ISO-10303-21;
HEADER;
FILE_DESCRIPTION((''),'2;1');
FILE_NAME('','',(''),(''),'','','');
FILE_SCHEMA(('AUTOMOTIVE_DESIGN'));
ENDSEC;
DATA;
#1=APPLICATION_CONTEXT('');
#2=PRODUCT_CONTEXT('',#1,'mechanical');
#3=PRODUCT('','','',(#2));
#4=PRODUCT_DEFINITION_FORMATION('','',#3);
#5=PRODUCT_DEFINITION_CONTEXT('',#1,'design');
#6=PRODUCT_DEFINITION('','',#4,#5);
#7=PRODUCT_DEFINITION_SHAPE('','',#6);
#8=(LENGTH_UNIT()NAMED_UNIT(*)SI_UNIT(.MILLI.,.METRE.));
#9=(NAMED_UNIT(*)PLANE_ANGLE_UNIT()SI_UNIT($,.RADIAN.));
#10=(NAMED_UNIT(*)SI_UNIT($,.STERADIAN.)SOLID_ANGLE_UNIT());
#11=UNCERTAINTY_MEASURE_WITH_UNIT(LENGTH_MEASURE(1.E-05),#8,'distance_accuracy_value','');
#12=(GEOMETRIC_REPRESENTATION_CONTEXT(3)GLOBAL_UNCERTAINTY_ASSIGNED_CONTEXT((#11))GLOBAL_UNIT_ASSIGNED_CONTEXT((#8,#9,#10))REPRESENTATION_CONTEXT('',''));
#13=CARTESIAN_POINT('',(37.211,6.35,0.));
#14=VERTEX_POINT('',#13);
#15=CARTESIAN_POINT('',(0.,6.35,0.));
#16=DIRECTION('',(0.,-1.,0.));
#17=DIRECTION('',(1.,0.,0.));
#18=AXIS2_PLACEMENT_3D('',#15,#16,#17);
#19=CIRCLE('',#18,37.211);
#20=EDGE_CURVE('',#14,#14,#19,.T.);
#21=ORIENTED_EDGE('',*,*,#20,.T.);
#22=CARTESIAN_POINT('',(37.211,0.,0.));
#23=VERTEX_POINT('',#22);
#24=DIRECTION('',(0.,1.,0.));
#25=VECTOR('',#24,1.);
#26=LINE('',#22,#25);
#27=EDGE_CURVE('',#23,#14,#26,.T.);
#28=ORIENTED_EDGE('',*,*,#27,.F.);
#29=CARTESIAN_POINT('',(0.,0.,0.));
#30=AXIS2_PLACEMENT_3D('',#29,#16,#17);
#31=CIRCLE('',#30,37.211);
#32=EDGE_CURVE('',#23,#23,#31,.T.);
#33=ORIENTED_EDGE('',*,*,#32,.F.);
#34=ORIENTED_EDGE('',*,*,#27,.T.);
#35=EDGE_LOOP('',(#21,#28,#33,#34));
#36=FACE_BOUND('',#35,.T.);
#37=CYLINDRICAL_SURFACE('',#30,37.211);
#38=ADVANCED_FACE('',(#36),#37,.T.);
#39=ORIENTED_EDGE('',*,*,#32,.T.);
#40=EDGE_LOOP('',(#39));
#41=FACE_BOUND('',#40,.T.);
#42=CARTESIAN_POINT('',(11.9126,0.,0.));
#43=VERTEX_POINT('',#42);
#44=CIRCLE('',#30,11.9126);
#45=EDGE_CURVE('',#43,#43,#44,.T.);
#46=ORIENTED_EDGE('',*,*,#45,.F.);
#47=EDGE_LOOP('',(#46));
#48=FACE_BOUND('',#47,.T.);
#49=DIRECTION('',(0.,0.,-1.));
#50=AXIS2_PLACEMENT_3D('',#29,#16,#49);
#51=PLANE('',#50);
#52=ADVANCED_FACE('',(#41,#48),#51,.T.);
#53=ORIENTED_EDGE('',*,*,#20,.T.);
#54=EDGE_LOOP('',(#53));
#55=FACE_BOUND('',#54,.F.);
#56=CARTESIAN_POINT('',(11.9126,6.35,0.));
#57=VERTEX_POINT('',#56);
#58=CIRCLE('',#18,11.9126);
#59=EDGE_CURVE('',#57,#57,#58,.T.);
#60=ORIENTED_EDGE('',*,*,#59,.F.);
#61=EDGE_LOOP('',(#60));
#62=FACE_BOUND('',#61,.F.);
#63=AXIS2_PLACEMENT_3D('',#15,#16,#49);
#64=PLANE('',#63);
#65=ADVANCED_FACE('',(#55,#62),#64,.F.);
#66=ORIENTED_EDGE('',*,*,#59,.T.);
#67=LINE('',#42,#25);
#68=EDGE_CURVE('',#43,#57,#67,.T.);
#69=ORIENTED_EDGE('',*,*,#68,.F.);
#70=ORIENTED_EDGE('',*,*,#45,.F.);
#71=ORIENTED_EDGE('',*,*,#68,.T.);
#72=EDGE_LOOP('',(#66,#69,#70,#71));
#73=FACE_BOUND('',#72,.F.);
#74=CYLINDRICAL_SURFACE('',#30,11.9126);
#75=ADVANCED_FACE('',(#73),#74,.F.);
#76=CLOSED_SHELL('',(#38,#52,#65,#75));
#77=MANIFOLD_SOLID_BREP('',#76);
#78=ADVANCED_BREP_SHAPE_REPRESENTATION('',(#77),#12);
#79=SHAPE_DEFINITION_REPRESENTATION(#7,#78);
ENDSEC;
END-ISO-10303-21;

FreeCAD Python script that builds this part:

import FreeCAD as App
import Part
import Sketcher
from FreeCAD import Vector
Q = App.Units.Quantity

doc = App.newDocument("Part")
body = doc.addObject("PartDesign::Body", "Body")

# Sketch on XZ plane
sketch1 = doc.addObject("Sketcher::SketchObject", "Sketch")
body.addObject(sketch1)
sketch1.AttachmentSupport = (doc.XZ_Plane, [""])
sketch1.MapMode = "FlatFace"
sketch1.addGeometry(Part.Circle(Vector(0, 0, 0), Vector(0, 0, 1), 37), False)
sketch1.addGeometry(Part.Circle(Vector(0, 0, 0), Vector(0, 0, 1), 12), False)
sketch1.addConstraint(Sketcher.Constraint("Coincident", 0, 3, -1, 1))
sketch1.addConstraint(Sketcher.Constraint("Coincident", 1, 3, -1, 1))
sketch1.addConstraint(Sketcher.Constraint("Diameter", 0, Q("2.93 in")))
sketch1.addConstraint(Sketcher.Constraint("Diameter", 1, Q("0.938 in")))
pad1 = doc.addObject("PartDesign::Pad", "Pad")
body.addObject(pad1)
pad1.Profile = sketch1
pad1.Length = Q("0.25 in")
pad1.Reversed = True

doc.recompute()
